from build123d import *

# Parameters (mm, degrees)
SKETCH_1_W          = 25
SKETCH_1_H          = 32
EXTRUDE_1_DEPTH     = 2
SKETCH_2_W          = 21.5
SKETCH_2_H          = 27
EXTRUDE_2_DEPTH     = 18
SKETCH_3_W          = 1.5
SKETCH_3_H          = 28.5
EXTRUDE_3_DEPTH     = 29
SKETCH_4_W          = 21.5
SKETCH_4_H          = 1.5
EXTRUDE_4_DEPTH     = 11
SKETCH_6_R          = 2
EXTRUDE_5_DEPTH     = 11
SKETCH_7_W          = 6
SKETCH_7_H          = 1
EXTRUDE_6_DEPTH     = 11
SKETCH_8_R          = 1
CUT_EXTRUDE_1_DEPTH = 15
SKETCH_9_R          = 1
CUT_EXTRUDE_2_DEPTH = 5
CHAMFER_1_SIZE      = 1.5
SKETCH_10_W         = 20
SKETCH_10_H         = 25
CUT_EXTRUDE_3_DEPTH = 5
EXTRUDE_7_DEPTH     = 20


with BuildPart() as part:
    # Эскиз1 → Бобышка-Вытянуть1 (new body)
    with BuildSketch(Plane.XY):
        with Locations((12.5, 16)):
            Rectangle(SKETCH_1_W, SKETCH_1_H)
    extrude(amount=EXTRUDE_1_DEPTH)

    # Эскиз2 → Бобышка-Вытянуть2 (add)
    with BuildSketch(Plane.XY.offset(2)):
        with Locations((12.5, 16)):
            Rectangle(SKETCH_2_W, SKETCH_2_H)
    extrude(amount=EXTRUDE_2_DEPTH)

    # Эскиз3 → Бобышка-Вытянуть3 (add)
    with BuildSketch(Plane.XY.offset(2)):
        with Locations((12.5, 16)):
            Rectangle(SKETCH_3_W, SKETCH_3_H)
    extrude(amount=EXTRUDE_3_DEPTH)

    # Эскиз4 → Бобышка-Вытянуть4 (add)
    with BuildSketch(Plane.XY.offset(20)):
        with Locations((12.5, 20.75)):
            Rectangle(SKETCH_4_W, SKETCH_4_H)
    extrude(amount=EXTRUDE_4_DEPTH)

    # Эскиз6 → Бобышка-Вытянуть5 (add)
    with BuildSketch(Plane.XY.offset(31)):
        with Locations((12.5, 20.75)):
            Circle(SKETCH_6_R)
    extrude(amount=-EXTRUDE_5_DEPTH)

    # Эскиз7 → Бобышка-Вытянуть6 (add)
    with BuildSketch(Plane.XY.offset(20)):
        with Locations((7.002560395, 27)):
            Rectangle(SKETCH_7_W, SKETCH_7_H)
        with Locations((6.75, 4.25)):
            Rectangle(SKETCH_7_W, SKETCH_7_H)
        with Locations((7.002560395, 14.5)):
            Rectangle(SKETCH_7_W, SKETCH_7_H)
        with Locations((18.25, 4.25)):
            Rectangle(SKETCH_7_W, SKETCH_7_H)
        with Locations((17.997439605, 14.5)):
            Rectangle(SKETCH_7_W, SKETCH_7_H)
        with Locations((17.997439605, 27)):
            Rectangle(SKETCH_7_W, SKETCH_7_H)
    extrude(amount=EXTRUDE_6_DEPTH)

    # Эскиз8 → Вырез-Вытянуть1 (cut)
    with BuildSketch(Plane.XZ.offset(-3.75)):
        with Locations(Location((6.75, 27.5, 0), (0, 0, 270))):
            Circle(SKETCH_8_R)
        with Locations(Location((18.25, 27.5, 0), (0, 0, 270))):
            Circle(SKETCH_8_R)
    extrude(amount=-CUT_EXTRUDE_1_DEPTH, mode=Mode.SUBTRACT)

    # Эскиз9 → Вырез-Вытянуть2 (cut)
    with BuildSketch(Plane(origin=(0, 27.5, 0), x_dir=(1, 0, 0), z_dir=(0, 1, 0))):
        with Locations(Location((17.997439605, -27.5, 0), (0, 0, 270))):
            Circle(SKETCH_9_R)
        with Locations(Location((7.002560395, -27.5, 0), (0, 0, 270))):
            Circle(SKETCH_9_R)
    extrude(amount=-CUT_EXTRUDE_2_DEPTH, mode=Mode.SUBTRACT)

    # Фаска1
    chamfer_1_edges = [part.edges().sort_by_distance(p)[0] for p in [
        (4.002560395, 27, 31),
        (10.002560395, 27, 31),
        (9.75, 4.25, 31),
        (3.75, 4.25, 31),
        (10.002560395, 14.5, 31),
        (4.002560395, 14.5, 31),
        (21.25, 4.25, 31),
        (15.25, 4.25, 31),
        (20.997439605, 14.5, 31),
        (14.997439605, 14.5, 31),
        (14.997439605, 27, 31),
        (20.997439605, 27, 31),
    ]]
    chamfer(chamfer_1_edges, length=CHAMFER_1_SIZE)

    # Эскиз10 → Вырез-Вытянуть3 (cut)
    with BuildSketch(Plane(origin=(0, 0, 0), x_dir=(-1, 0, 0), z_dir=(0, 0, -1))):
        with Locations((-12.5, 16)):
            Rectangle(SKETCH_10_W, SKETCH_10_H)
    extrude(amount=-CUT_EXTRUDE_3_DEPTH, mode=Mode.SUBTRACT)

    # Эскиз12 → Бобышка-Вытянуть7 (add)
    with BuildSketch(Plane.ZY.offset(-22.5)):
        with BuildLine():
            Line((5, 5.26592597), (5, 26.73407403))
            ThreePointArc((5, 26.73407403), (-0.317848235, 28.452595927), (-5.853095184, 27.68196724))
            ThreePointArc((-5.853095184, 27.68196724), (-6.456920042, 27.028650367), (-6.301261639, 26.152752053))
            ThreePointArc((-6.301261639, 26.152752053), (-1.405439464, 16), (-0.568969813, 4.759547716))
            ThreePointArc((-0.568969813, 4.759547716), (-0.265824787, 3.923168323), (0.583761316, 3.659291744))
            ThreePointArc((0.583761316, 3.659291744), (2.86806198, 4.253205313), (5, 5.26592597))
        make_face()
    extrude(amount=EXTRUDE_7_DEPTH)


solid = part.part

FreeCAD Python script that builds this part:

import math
import FreeCAD as App
import Part
import Sketcher


def edges_at(feature, points):
    """Names of the edges that pass closest to the given points."""
    edges = feature.Shape.Edges
    near = lambda p: min(range(len(edges)), key=lambda i: edges[i].distToShape(Part.Vertex(*p))[0])
    return sorted({f"Edge{near(p) + 1}" for p in points})


def add_polygon(sketch, points):
    """Adds a closed chain of lines whose ends are joined by coincident constraints."""
    first, n = sketch.GeometryCount, len(points)
    for a, b in zip(points, points[1:] + points[:1]):
        sketch.addGeometry(Part.LineSegment(App.Vector(*a, 0), App.Vector(*b, 0)), False)
    for i in range(n):
        sketch.addConstraint(Sketcher.Constraint("Coincident", first + i, 2, first + (i + 1) % n, 1))

doc = App.newDocument("Part")
params = doc.addObject("Spreadsheet::Sheet", "Params")
for row, (alias, value) in enumerate([
    ("sketch1_width", "25 mm"),
    ("sketch1_height", "32 mm"),
    ("pad1_length", "2 mm"),
    ("sketch2_height", "27 mm"),
    ("sketch2_width", "21.5 mm"),
    ("pad2_length", "18 mm"),
    ("sketch3_width", "1.5 mm"),
    ("sketch3_height", "28.5 mm"),
    ("pad3_length", "29 mm"),
    ("sketch4_width", "21.5 mm"),
    ("sketch4_height", "1.5 mm"),
    ("pad4_length", "11 mm"),
    ("sketch5_diameter", "4 mm"),
    ("pad5_length", "11 mm"),
    ("sketch6_width", "6 mm"),
    ("sketch6_height", "1 mm"),
    ("pad6_length", "11 mm"),
    ("sketch7_diameter", "2 mm"),
    ("pocket1_length", "15 mm"),
    ("sketch8_diameter", "2 mm"),
    ("pocket2_length", "5 mm"),
    ("chamfer_size", "1.5 mm"),
    ("sketch9_width", "20 mm"),
    ("sketch9_height", "25 mm"),
    ("pocket3_length", "5 mm"),
    ("sketch10_radius", "1 mm"),
    ("sketch10_radius2", "12.5 mm"),
    ("pad7_length", "20 mm"),
], start=1):
    params.set(f"A{row}", alias)
    params.set(f"B{row}", "=" + value)
    params.setAlias(f"B{row}", alias)

body = doc.addObject("PartDesign::Body", "Body")

# Sketch on XY plane
sketch1 = body.newObject("Sketcher::SketchObject", "Sketch")
sketch1.AttachmentSupport = (doc.getObject("XY_Plane"), [""])
sketch1.MapMode = "FlatFace"
add_polygon(sketch1, [(0, 32), (0, 0), (25, 0), (25, 32)])  # lines 0-3
sketch1.addConstraint([
    Sketcher.Constraint("Vertical", 0),
    Sketcher.Constraint("Horizontal", 1),
    Sketcher.Constraint("Vertical", 2),
    Sketcher.Constraint("Horizontal", 3),
    Sketcher.Constraint("Coincident", 0, 2, -1, 1),
    Sketcher.Constraint("DistanceX", 1, 1, 1, 2, 25.0),
    Sketcher.Constraint("DistanceY", 0, 2, 0, 1, 32.0),
])
sketch1.setExpression("Constraints[9]", "Params.sketch1_width")
sketch1.setExpression("Constraints[10]", "Params.sketch1_height")
pad1 = body.newObject("PartDesign::Pad", "Pad")
pad1.Profile = sketch1
pad1.setExpression("Length", "Params.pad1_length")

# Sketch on XY plane
sketch2 = body.newObject("Sketcher::SketchObject", "Sketch001")
sketch2.AttachmentSupport = (doc.getObject("XY_Plane"), [""])
sketch2.MapMode = "FlatFace"
sketch2.AttachmentOffset = App.Placement(App.Vector(0, 0, 2), App.Rotation())
add_polygon(sketch2, [(2, 30), (2, 2), (23, 2), (23, 30)])  # lines 0-3
sketch2.addConstraint([
    Sketcher.Constraint("Vertical", 0),
    Sketcher.Constraint("Horizontal", 1),
    Sketcher.Constraint("Vertical", 2),
    Sketcher.Constraint("Horizontal", 3),
    Sketcher.Constraint("DistanceY", 0, 2, 0, 1, 27.0),
    Sketcher.Constraint("DistanceX", 1, 1, 1, 2, 21.5),
    Sketcher.Constraint("DistanceY", -1, 1, 0, 2, 2.5),
    Sketcher.Constraint("DistanceX", -1, 1, 0, 2, 1.75),
])
sketch2.setExpression("Constraints[8]", "Params.sketch2_height")
sketch2.setExpression("Constraints[9]", "Params.sketch2_width")
pad2 = body.newObject("PartDesign::Pad", "Pad001")
pad2.Profile = sketch2
pad2.setExpression("Length", "Params.pad2_length")

# Sketch on XY plane
sketch3 = body.newObject("Sketcher::SketchObject", "Sketch002")
sketch3.AttachmentSupport = (doc.getObject("XY_Plane"), [""])
sketch3.MapMode = "FlatFace"
sketch3.AttachmentOffset = App.Placement(App.Vector(0, 0, 2), App.Rotation())
add_polygon(sketch3, [(11.8, 30.2), (11.8, 1.8), (13.2, 1.8), (13.2, 30.2)])  # lines 0-3
sketch3.addConstraint([
    Sketcher.Constraint("Vertical", 0),
    Sketcher.Constraint("Horizontal", 1),
    Sketcher.Constraint("Vertical", 2),
    Sketcher.Constraint("Horizontal", 3),
    Sketcher.Constraint("DistanceX", 1, 1, 1, 2, 1.5),
    Sketcher.Constraint("DistanceY", 0, 2, 0, 1, 28.5),
    Sketcher.Constraint("DistanceX", -1, 1, 0, 2, 11.75),
    Sketcher.Constraint("DistanceY", -1, 1, 0, 2, 1.75),
])
sketch3.setExpression("Constraints[8]", "Params.sketch3_width")
sketch3.setExpression("Constraints[9]", "Params.sketch3_height")
pad3 = body.newObject("PartDesign::Pad", "Pad002")
pad3.Profile = sketch3
pad3.setExpression("Length", "Params.pad3_length")

# Sketch on XY plane
sketch4 = body.newObject("Sketcher::SketchObject", "Sketch003")
sketch4.AttachmentSupport = (doc.getObject("XY_Plane"), [""])
sketch4.MapMode = "FlatFace"
sketch4.AttachmentOffset = App.Placement(App.Vector(0, 0, 20), App.Rotation())
add_polygon(sketch4, [(1.8, 21.5), (1.8, 20), (23.2, 20), (23.2, 21.5)])  # lines 0-3
sketch4.addConstraint([
    Sketcher.Constraint("Vertical", 0),
    Sketcher.Constraint("Horizontal", 1),
    Sketcher.Constraint("Vertical", 2),
    Sketcher.Constraint("Horizontal", 3),
    Sketcher.Constraint("DistanceX", 1, 1, 1, 2, 21.5),
    Sketcher.Constraint("DistanceY", 0, 2, 0, 1, 1.5),
    Sketcher.Constraint("DistanceY", -1, 1, 0, 2, 20.0),
    Sketcher.Constraint("DistanceX", -1, 1, 0, 2, 1.75),
])
sketch4.setExpression("Constraints[8]", "Params.sketch4_width")
sketch4.setExpression("Constraints[9]", "Params.sketch4_height")
pad4 = body.newObject("PartDesign::Pad", "Pad003")
pad4.Profile = sketch4
pad4.setExpression("Length", "Params.pad4_length")

# Sketch on XY plane
sketch5 = body.newObject("Sketcher::SketchObject", "Sketch004")
sketch5.AttachmentSupport = (doc.getObject("XY_Plane"), [""])
sketch5.MapMode = "FlatFace"
sketch5.AttachmentOffset = App.Placement(App.Vector(0, 0, 31), App.Rotation())
sketch5.addGeometry(Part.Circle(App.Vector(12.5, 20.8, 0), App.Vector(0, 0, 1), 2), False)
sketch5.addConstraint([
    Sketcher.Constraint("Diameter", 0, 4.0),
    Sketcher.Constraint("DistanceX", -1, 1, 0, 3, 12.5),
    Sketcher.Constraint("DistanceY", -1, 1, 0, 3, 20.75),
])
sketch5.setExpression("Constraints[0]", "Params.sketch5_diameter")
pad5 = body.newObject("PartDesign::Pad", "Pad004")
pad5.Profile = sketch5
pad5.setExpression("Length", "Params.pad5_length")
pad5.Reversed = True

# Sketch on XY plane
sketch6 = body.newObject("Sketcher::SketchObject", "Sketch005")
sketch6.AttachmentSupport = (doc.getObject("XY_Plane"), [""])
sketch6.MapMode = "FlatFace"
sketch6.AttachmentOffset = App.Placement(App.Vector(0, 0, 20), App.Rotation())
add_polygon(sketch6, [(4, 27.5), (4, 26.5), (10, 26.5), (10, 27.5)])  # lines 0-3
add_polygon(sketch6, [(3.8, 4.8), (3.8, 3.8), (9.8, 3.8), (9.8, 4.8)])  # lines 4-7
add_polygon(sketch6, [(4, 15), (4, 14), (10, 14), (10, 15)])  # lines 8-11
add_polygon(sketch6, [(15.2, 4.8), (15.2, 3.8), (21.2, 3.8), (21.2, 4.8)])  # lines 12-15
add_polygon(sketch6, [(15, 15), (15, 14), (21, 14), (21, 15)])  # lines 16-19
add_polygon(sketch6, [(15, 27.5), (15, 26.5), (21, 26.5), (21, 27.5)])  # lines 20-23
sketch6.addConstraint([
    Sketcher.Constraint("Vertical", 0),
    Sketcher.Constraint("Horizontal", 1),
    Sketcher.Constraint("Vertical", 2),
    Sketcher.Constraint("Horizontal", 3),
    Sketcher.Constraint("Vertical", 4),
    Sketcher.Constraint("Horizontal", 5),
    Sketcher.Constraint("Vertical", 6),
    Sketcher.Constraint("Horizontal", 7),
    Sketcher.Constraint("Vertical", 8),
    Sketcher.Constraint("Horizontal", 9),
    Sketcher.Constraint("Vertical", 10),
    Sketcher.Constraint("Horizontal", 11),
    Sketcher.Constraint("Vertical", 12),
    Sketcher.Constraint("Horizontal", 13),
    Sketcher.Constraint("Vertical", 14),
    Sketcher.Constraint("Horizontal", 15),
    Sketcher.Constraint("Vertical", 16),
    Sketcher.Constraint("Horizontal", 17),
    Sketcher.Constraint("Vertical", 18),
    Sketcher.Constraint("Horizontal", 19),
    Sketcher.Constraint("Vertical", 20),
    Sketcher.Constraint("Horizontal", 21),
    Sketcher.Constraint("Vertical", 22),
    Sketcher.Constraint("Horizontal", 23),
    Sketcher.Constraint("Horizontal", 5, 2, 12, 2),
    Sketcher.Constraint("Horizontal", 7, 2, 14, 2),
    Sketcher.Constraint("Horizontal", 9, 2, 16, 2),
    Sketcher.Constraint("Horizontal", 11, 2, 18, 2),
    Sketcher.Constraint("Horizontal", 1, 2, 20, 2),
    Sketcher.Constraint("Horizontal", 3, 2, 22, 2),
    Sketcher.Constraint("Vertical", 3, 2, 8, 2),
    Sketcher.Constraint("Vertical", 2, 2, 9, 2),
    Sketcher.Constraint("Vertical", 19, 2, 20, 2),
    Sketcher.Constraint("Vertical", 18, 2, 21, 2),
    Sketcher.Constraint("Equal", 3, 5),
    Sketcher.Constraint("Equal", 11, 13),
    Sketcher.Constraint("Equal", 15, 17),
    Sketcher.Constraint("Equal", 2, 4),
    Sketcher.Constraint("Equal", 6, 8),
    Sketcher.Constraint("DistanceX", 1, 1, 1, 2, 6.0),
    Sketcher.Constraint("DistanceY", 0, 2, 0, 1, 1.0),
    Sketcher.Constraint("DistanceY", -1, 1, 8, 2, 14.0),
    Sketcher.Constraint("DistanceY", -1, 1, 0, 2, 26.5),
    Sketcher.Constraint("DistanceX", 5, 2, 12, 2, 5.5),
    Sketcher.Constraint("DistanceX", -1, 1, 4, 2, 3.75),
    Sketcher.Constraint("DistanceY", -1, 1, 4, 2, 3.75),
    Sketcher.Constraint("DistanceX", -1, 1, 0, 2, 4.00256),
    Sketcher.Constraint("DistanceX", -1, 1, 16, 2, 14.99744),
])
sketch6.setExpression("Constraints[63]", "Params.sketch6_width")
sketch6.setExpression("Constraints[64]", "Params.sketch6_height")
pad6 = body.newObject("PartDesign::Pad", "Pad005")
pad6.Profile = sketch6
pad6.setExpression("Length", "Params.pad6_length")

# Sketch on XZ plane
sketch7 = body.newObject("Sketcher::SketchObject", "Sketch006")
sketch7.AttachmentSupport = (doc.getObject("XZ_Plane"), [""])
sketch7.MapMode = "FlatFace"
sketch7.AttachmentOffset = App.Placement(App.Vector(0, 0, -3.75), App.Rotation())
sketch7.addGeometry([
    Part.Circle(App.Vector(6.8, 27.5, 0), App.Vector(0, 0, 1), 1),
    Part.Circle(App.Vector(18.2, 27.5, 0), App.Vector(0, 0, 1), 1),
], False)
sketch7.addConstraint([
    Sketcher.Constraint("Equal", 0, 1),
    Sketcher.Constraint("Horizontal", 0, 3, 1, 3),
    Sketcher.Constraint("Diameter", 0, 2.0),
    Sketcher.Constraint("DistanceY", -1, 1, 0, 3, 27.5),
    Sketcher.Constraint("DistanceX", 0, 3, 1, 3, 11.5),
    Sketcher.Constraint("DistanceX", -1, 1, 0, 3, 6.75),
])
sketch7.setExpression("Constraints[2]", "Params.sketch7_diameter")
pocket1 = body.newObject("PartDesign::Pocket", "Pocket")
pocket1.Profile = sketch7
pocket1.setExpression("Length", "Params.pocket1_length")

# Sketch on XZ plane
sketch8 = body.newObject("Sketcher::SketchObject", "Sketch007")
sketch8.AttachmentSupport = (doc.getObject("XZ_Plane"), [""])
sketch8.MapMode = "FlatFace"
sketch8.AttachmentOffset = App.Placement(App.Vector(0, 0, -27.5), App.Rotation())
sketch8.addGeometry([
    Part.Circle(App.Vector(18, 27.5, 0), App.Vector(0, 0, 1), 1),
    Part.Circle(App.Vector(7, 27.5, 0), App.Vector(0, 0, 1), 1),
], False)
sketch8.addConstraint([
    Sketcher.Constraint("Equal", 0, 1),
    Sketcher.Constraint("Horizontal", 0, 3, 1, 3),
    Sketcher.Constraint("Diameter", 0, 2.0),
    Sketcher.Constraint("DistanceY", -1, 1, 0, 3, 27.5),
    Sketcher.Constraint("DistanceX", -1, 1, 0, 3, 17.99744),
    Sketcher.Constraint("DistanceX", -1, 1, 1, 3, 7.00256),
])
sketch8.setExpression("Constraints[2]", "Params.sketch8_diameter")
pocket2 = body.newObject("PartDesign::Pocket", "Pocket001")
pocket2.Profile = sketch8
pocket2.setExpression("Length", "Params.pocket2_length")
pocket2.Reversed = True
doc.recompute()

chamfer = body.newObject("PartDesign::Chamfer", "Chamfer")
chamfer.Base = (pocket2, edges_at(pocket2, [
    (4.003, 27, 31),
    (10.003, 27, 31),
    (9.75, 4.25, 31),
    (3.75, 4.25, 31),
    (10.003, 14.5, 31),
    (4.003, 14.5, 31),
    (21.25, 4.25, 31),
    (15.25, 4.25, 31),
    (20.997, 14.5, 31),
    (14.997, 14.5, 31),
    (14.997, 27, 31),
    (20.997, 27, 31),
]))
chamfer.setExpression("Size", "Params.chamfer_size")

# Sketch on XY plane
sketch9 = body.newObject("Sketcher::SketchObject", "Sketch008")
sketch9.AttachmentSupport = (doc.getObject("XY_Plane"), [""])
sketch9.MapMode = "FlatFace"
add_polygon(sketch9, [(22, 28), (22, 4), (2, 4), (2, 28)])  # lines 0-3
sketch9.addConstraint([
    Sketcher.Constraint("Vertical", 0),
    Sketcher.Constraint("Horizontal", 1),
    Sketcher.Constraint("Vertical", 2),
    Sketcher.Constraint("Horizontal", 3),
    Sketcher.Constraint("DistanceX", 1, 2, 1, 1, 20.0),
    Sketcher.Constraint("DistanceY", 0, 2, 0, 1, 25.0),
    Sketcher.Constraint("DistanceX", -1, 1, 0, 2, 22.5),
    Sketcher.Constraint("DistanceY", -1, 1, 0, 2, 3.5),
])
sketch9.setExpression("Constraints[8]", "Params.sketch9_width")
sketch9.setExpression("Constraints[9]", "Params.sketch9_height")
pocket3 = body.newObject("PartDesign::Pocket", "Pocket002")
pocket3.Profile = sketch9
pocket3.setExpression("Length", "Params.pocket3_length")
pocket3.Reversed = True

# Sketch on YZ plane
sketch10 = body.newObject("Sketcher::SketchObject", "Sketch009")
sketch10.AttachmentSupport = (doc.getObject("YZ_Plane"), [""])
sketch10.MapMode = "FlatFace"
sketch10.AttachmentOffset = App.Placement(App.Vector(0, 0, 22.5), App.Rotation())
sketch10.addGeometry([
    Part.LineSegment(App.Vector(5.3, 5, 0), App.Vector(26.7, 5, 0)),  # 0
    Part.ArcOfCircle(Part.Circle(App.Vector(16, -1.4, 0), App.Vector(0, 0, 1), 12.5), math.radians(-21), math.radians(31)),  # 1
    Part.ArcOfCircle(Part.Circle(App.Vector(26.7, -5.5, 0), App.Vector(0, 0, 1), 1), math.radians(-126), math.radians(-21)),  # 2
    Part.ArcOfCircle(Part.Circle(App.Vector(8.2, -30.6, 0), App.Vector(0, 0, 1), 30.2), math.radians(54), math.radians(96)),  # 3
    Part.ArcOfCircle(Part.Circle(App.Vector(4.6, 0.4, 0), App.Vector(0, 0, 1), 1), math.radians(171), math.radians(276)),  # 4
    Part.ArcOfCircle(Part.Circle(App.Vector(16, -1.4, 0), App.Vector(0, 0, 1), 12.5), math.radians(149), math.radians(171)),  # 5
], False)
sketch10.addConstraint([
    Sketcher.Constraint("Coincident", 0, 2, 1, 2),
    Sketcher.Constraint("Tangent", 1, 1, 2, 2),
    Sketcher.Constraint("Tangent", 2, 1, 3, 1),
    Sketcher.Constraint("Tangent", 3, 2, 4, 2),
    Sketcher.Constraint("Tangent", 4, 1, 5, 2),
    Sketcher.Constraint("Coincident", 5, 1, 0, 1),
    Sketcher.Constraint("Horizontal", 0),
    Sketcher.Constraint("Coincident", 5, 3, 1, 3),
    Sketcher.Constraint("Equal", 2, 4),
    Sketcher.Constraint("Equal", 1, 5),
    Sketcher.Constraint("Radius", 2, 1.0),
    Sketcher.Constraint("Radius", 1, 12.5),
    Sketcher.Constraint("DistanceX", -1, 1, 1, 3, 16.0),
    Sketcher.Constraint("DistanceY", -1, 1, 0, 2, 5.0),
    Sketcher.Constraint("Radius", 3, 30.231031),
    Sketcher.Constraint("DistanceY", 3, 3, 4, 3, 31.030998),
    Sketcher.Constraint("DistanceX", 0, 1, 0, 2, 21.468148),
    Sketcher.Constraint("DistanceY", 5, 3, 4, 1, 1.989201),
])
sketch10.setExpression("Constraints[10]", "Params.sketch10_radius")
sketch10.setExpression("Constraints[11]", "Params.sketch10_radius2")
pad7 = body.newObject("PartDesign::Pad", "Pad006")
pad7.Profile = sketch10
pad7.setExpression("Length", "Params.pad7_length")
pad7.Reversed = True

doc.recompute()
